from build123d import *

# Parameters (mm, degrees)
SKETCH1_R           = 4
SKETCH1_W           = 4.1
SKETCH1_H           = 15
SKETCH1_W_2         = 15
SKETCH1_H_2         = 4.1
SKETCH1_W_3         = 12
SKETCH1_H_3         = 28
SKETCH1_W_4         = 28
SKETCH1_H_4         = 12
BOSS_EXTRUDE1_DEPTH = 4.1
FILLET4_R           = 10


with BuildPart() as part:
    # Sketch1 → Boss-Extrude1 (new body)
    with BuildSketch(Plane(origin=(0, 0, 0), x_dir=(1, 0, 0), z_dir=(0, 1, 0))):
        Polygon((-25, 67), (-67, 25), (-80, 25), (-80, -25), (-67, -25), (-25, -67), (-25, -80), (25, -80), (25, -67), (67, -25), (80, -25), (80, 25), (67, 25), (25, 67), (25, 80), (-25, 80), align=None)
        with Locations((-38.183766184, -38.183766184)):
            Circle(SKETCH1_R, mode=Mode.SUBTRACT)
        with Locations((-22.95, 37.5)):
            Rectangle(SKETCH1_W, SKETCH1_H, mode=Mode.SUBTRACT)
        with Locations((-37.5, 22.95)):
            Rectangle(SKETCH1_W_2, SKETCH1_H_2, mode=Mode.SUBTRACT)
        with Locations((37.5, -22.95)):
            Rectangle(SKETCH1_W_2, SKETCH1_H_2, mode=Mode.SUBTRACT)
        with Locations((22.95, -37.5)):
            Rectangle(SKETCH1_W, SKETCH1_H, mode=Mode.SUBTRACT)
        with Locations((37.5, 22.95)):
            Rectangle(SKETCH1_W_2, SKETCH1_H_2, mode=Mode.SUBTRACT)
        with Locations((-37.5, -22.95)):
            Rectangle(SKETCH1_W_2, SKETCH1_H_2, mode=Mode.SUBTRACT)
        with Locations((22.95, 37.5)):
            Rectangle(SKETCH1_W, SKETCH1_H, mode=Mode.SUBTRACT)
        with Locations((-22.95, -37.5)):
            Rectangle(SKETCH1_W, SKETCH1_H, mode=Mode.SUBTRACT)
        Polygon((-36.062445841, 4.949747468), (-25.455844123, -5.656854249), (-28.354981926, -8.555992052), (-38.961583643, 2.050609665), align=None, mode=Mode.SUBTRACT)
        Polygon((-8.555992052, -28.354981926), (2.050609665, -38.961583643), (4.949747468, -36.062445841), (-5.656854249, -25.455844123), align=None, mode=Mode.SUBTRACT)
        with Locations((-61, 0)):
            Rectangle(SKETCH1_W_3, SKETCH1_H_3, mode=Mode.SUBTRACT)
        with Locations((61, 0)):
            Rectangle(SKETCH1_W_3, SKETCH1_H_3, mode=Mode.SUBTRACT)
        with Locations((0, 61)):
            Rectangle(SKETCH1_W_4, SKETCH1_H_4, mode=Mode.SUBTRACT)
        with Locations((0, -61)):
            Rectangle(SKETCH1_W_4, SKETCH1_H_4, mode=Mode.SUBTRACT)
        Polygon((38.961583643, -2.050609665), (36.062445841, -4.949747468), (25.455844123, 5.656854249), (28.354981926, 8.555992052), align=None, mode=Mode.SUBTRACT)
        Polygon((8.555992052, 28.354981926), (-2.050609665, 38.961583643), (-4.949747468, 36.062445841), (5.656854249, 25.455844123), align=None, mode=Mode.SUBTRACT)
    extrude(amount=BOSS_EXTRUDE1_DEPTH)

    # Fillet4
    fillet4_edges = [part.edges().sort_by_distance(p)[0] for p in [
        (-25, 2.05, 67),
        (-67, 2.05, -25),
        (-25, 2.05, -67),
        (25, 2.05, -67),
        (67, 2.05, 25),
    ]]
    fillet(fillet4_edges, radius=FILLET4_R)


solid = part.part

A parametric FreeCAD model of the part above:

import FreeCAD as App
import Part
import Sketcher
Q = App.Units.Quantity


def edges_at(feature, points):
    """Names of the edges that pass closest to the given points."""
    edges = feature.Shape.Edges
    near = lambda p: min(range(len(edges)), key=lambda i: edges[i].distToShape(Part.Vertex(*p))[0])
    return sorted({f"Edge{near(p) + 1}" for p in points})

doc = App.newDocument("Part")
body = doc.addObject("PartDesign::Body", "Body")

sketch1 = body.newObject("Sketcher::SketchObject", "Sketch")
sketch1.AttachmentSupport = (doc.getObject("XZ_Plane"), [""])
sketch1.MapMode = "FlatFace"
sketch1.addGeometry([
    Part.LineSegment(App.Vector(-25, -67, 0), App.Vector(-67, -25, 0)),
    Part.LineSegment(App.Vector(-67, -25, 0), App.Vector(-80, -25, 0)),
    Part.LineSegment(App.Vector(-80, -25, 0), App.Vector(-80, 25, 0)),
    Part.LineSegment(App.Vector(-80, 25, 0), App.Vector(-67, 25, 0)),
    Part.LineSegment(App.Vector(-67, 25, 0), App.Vector(-25, 67, 0)),
    Part.LineSegment(App.Vector(-25, 67, 0), App.Vector(-25, 80, 0)),
    Part.LineSegment(App.Vector(-25, 80, 0), App.Vector(25, 80, 0)),
    Part.LineSegment(App.Vector(25, 80, 0), App.Vector(25, 67, 0)),
    Part.LineSegment(App.Vector(25, 67, 0), App.Vector(67, 25, 0)),
    Part.LineSegment(App.Vector(67, 25, 0), App.Vector(80, 25, 0)),
    Part.LineSegment(App.Vector(80, 25, 0), App.Vector(80, -25, 0)),
    Part.LineSegment(App.Vector(80, -25, 0), App.Vector(67, -25, 0)),
    Part.LineSegment(App.Vector(67, -25, 0), App.Vector(25, -67, 0)),
    Part.LineSegment(App.Vector(25, -67, 0), App.Vector(25, -80, 0)),
    Part.LineSegment(App.Vector(25, -80, 0), App.Vector(-25, -80, 0)),
    Part.LineSegment(App.Vector(-25, -80, 0), App.Vector(-25, -67, 0)),
    Part.Circle(App.Vector(-38.183766, 38.183766, 0), App.Vector(0, 0, 1), 4),
    Part.LineSegment(App.Vector(-20.9, 45, 0), App.Vector(-25, 45, 0)),
    Part.LineSegment(App.Vector(-25, 45, 0), App.Vector(-25, 30, 0)),
    Part.LineSegment(App.Vector(-25, 30, 0), App.Vector(-20.9, 30, 0)),
    Part.LineSegment(App.Vector(-20.9, 30, 0), App.Vector(-20.9, 45, 0)),
    Part.LineSegment(App.Vector(-30, 25, 0), App.Vector(-45, 25, 0)),
    Part.LineSegment(App.Vector(-45, 25, 0), App.Vector(-45, 20.9, 0)),
    Part.LineSegment(App.Vector(-45, 20.9, 0), App.Vector(-30, 20.9, 0)),
    Part.LineSegment(App.Vector(-30, 20.9, 0), App.Vector(-30, 25, 0)),
    Part.LineSegment(App.Vector(2.05061, 38.961584, 0), App.Vector(-8.555992, 28.354982, 0)),
    Part.LineSegment(App.Vector(-8.555992, 28.354982, 0), App.Vector(-5.656854, 25.455844, 0)),
    Part.LineSegment(App.Vector(-5.656854, 25.455844, 0), App.Vector(4.949747, 36.062446, 0)),
    Part.LineSegment(App.Vector(4.949747, 36.062446, 0), App.Vector(2.05061, 38.961584, 0)),
    Part.LineSegment(App.Vector(-38.961584, -2.05061, 0), App.Vector(-36.062446, -4.949747, 0)),
    Part.LineSegment(App.Vector(-36.062446, -4.949747, 0), App.Vector(-25.455844, 5.656854, 0)),
    Part.LineSegment(App.Vector(-25.455844, 5.656854, 0), App.Vector(-28.354982, 8.555992, 0)),
    Part.LineSegment(App.Vector(-28.354982, 8.555992, 0), App.Vector(-38.961584, -2.05061, 0)),
    Part.LineSegment(App.Vector(14, 67, 0), App.Vector(-14, 67, 0)),
    Part.LineSegment(App.Vector(-14, 67, 0), App.Vector(-14, 55, 0)),
    Part.LineSegment(App.Vector(-14, 55, 0), App.Vector(14, 55, 0)),
    Part.LineSegment(App.Vector(14, 55, 0), App.Vector(14, 67, 0)),
    Part.LineSegment(App.Vector(25, 45, 0), App.Vector(20.9, 45, 0)),
    Part.LineSegment(App.Vector(20.9, 45, 0), App.Vector(20.9, 30, 0)),
    Part.LineSegment(App.Vector(20.9, 30, 0), App.Vector(25, 30, 0)),
    Part.LineSegment(App.Vector(25, 30, 0), App.Vector(25, 45, 0)),
    Part.LineSegment(App.Vector(45, 25, 0), App.Vector(30, 25, 0)),
    Part.LineSegment(App.Vector(30, 25, 0), App.Vector(30, 20.9, 0)),
    Part.LineSegment(App.Vector(30, 20.9, 0), App.Vector(45, 20.9, 0)),
    Part.LineSegment(App.Vector(45, 20.9, 0), App.Vector(45, 25, 0)),
    Part.LineSegment(App.Vector(-55, 14, 0), App.Vector(-67, 14, 0)),
    Part.LineSegment(App.Vector(-67, 14, 0), App.Vector(-67, -14, 0)),
    Part.LineSegment(App.Vector(-67, -14, 0), App.Vector(-55, -14, 0)),
    Part.LineSegment(App.Vector(-55, -14, 0), App.Vector(-55, 14, 0)),
    Part.LineSegment(App.Vector(-30, -20.9, 0), App.Vector(-45, -20.9, 0)),
    Part.LineSegment(App.Vector(-45, -20.9, 0), App.Vector(-45, -25, 0)),
    Part.LineSegment(App.Vector(-45, -25, 0), App.Vector(-30, -25, 0)),
    Part.LineSegment(App.Vector(-30, -25, 0), App.Vector(-30, -20.9, 0)),
    Part.LineSegment(App.Vector(-20.9, -30, 0), App.Vector(-25, -30, 0)),
    Part.LineSegment(App.Vector(-25, -30, 0), App.Vector(-25, -45, 0)),
    Part.LineSegment(App.Vector(-25, -45, 0), App.Vector(-20.9, -45, 0)),
    Part.LineSegment(App.Vector(-20.9, -45, 0), App.Vector(-20.9, -30, 0)),
    Part.LineSegment(App.Vector(28.354982, -8.555992, 0), App.Vector(38.961584, 2.05061, 0)),
    Part.LineSegment(App.Vector(38.961584, 2.05061, 0), App.Vector(36.062446, 4.949747, 0)),
    Part.LineSegment(App.Vector(36.062446, 4.949747, 0), App.Vector(25.455844, -5.656854, 0)),
    Part.LineSegment(App.Vector(25.455844, -5.656854, 0), App.Vector(28.354982, -8.555992, 0)),
    Part.LineSegment(App.Vector(-2.05061, -38.961584, 0), App.Vector(8.555992, -28.354982, 0)),
    Part.LineSegment(App.Vector(8.555992, -28.354982, 0), App.Vector(5.656854, -25.455844, 0)),
    Part.LineSegment(App.Vector(5.656854, -25.455844, 0), App.Vector(-4.949747, -36.062446, 0)),
    Part.LineSegment(App.Vector(-4.949747, -36.062446, 0), App.Vector(-2.05061, -38.961584, 0)),
    Part.LineSegment(App.Vector(67, 14, 0), App.Vector(55, 14, 0)),
    Part.LineSegment(App.Vector(55, 14, 0), App.Vector(55, -14, 0)),
    Part.LineSegment(App.Vector(55, -14, 0), App.Vector(67, -14, 0)),
    Part.LineSegment(App.Vector(67, -14, 0), App.Vector(67, 14, 0)),
    Part.LineSegment(App.Vector(45, -20.9, 0), App.Vector(30, -20.9, 0)),
    Part.LineSegment(App.Vector(30, -20.9, 0), App.Vector(30, -25, 0)),
    Part.LineSegment(App.Vector(30, -25, 0), App.Vector(45, -25, 0)),
    Part.LineSegment(App.Vector(45, -25, 0), App.Vector(45, -20.9, 0)),
    Part.LineSegment(App.Vector(25, -30, 0), App.Vector(20.9, -30, 0)),
    Part.LineSegment(App.Vector(20.9, -30, 0), App.Vector(20.9, -45, 0)),
    Part.LineSegment(App.Vector(20.9, -45, 0), App.Vector(25, -45, 0)),
    Part.LineSegment(App.Vector(25, -45, 0), App.Vector(25, -30, 0)),
    Part.LineSegment(App.Vector(14, -55, 0), App.Vector(-14, -55, 0)),
    Part.LineSegment(App.Vector(-14, -55, 0), App.Vector(-14, -67, 0)),
    Part.LineSegment(App.Vector(-14, -67, 0), App.Vector(14, -67, 0)),
    Part.LineSegment(App.Vector(14, -67, 0), App.Vector(14, -55, 0)),
], False)
sketch1.addConstraint([
    Sketcher.Constraint("Coincident", 0, 2, 1, 1),
    Sketcher.Constraint("Coincident", 1, 2, 2, 1),
    Sketcher.Constraint("Coincident", 2, 2, 3, 1),
    Sketcher.Constraint("Coincident", 3, 2, 4, 1),
    Sketcher.Constraint("Coincident", 4, 2, 5, 1),
    Sketcher.Constraint("Coincident", 5, 2, 6, 1),
    Sketcher.Constraint("Coincident", 6, 2, 7, 1),
    Sketcher.Constraint("Coincident", 7, 2, 8, 1),
    Sketcher.Constraint("Coincident", 8, 2, 9, 1),
    Sketcher.Constraint("Coincident", 9, 2, 10, 1),
    Sketcher.Constraint("Coincident", 10, 2, 11, 1),
    Sketcher.Constraint("Coincident", 11, 2, 12, 1),
    Sketcher.Constraint("Coincident", 12, 2, 13, 1),
    Sketcher.Constraint("Coincident", 13, 2, 14, 1),
    Sketcher.Constraint("Coincident", 14, 2, 15, 1),
    Sketcher.Constraint("Coincident", 15, 2, 0, 1),
    Sketcher.Constraint("Coincident", 17, 2, 18, 1),
    Sketcher.Constraint("Coincident", 18, 2, 19, 1),
    Sketcher.Constraint("Coincident", 19, 2, 20, 1),
    Sketcher.Constraint("Coincident", 20, 2, 17, 1),
    Sketcher.Constraint("Coincident", 21, 2, 22, 1),
    Sketcher.Constraint("Coincident", 22, 2, 23, 1),
    Sketcher.Constraint("Coincident", 23, 2, 24, 1),
    Sketcher.Constraint("Coincident", 24, 2, 21, 1),
    Sketcher.Constraint("Coincident", 25, 2, 26, 1),
    Sketcher.Constraint("Coincident", 26, 2, 27, 1),
    Sketcher.Constraint("Coincident", 27, 2, 28, 1),
    Sketcher.Constraint("Coincident", 28, 2, 25, 1),
    Sketcher.Constraint("Coincident", 29, 2, 30, 1),
    Sketcher.Constraint("Coincident", 30, 2, 31, 1),
    Sketcher.Constraint("Coincident", 31, 2, 32, 1),
    Sketcher.Constraint("Coincident", 32, 2, 29, 1),
    Sketcher.Constraint("Coincident", 33, 2, 34, 1),
    Sketcher.Constraint("Coincident", 34, 2, 35, 1),
    Sketcher.Constraint("Coincident", 35, 2, 36, 1),
    Sketcher.Constraint("Coincident", 36, 2, 33, 1),
    Sketcher.Constraint("Coincident", 37, 2, 38, 1),
    Sketcher.Constraint("Coincident", 38, 2, 39, 1),
    Sketcher.Constraint("Coincident", 39, 2, 40, 1),
    Sketcher.Constraint("Coincident", 40, 2, 37, 1),
    Sketcher.Constraint("Coincident", 41, 2, 42, 1),
    Sketcher.Constraint("Coincident", 42, 2, 43, 1),
    Sketcher.Constraint("Coincident", 43, 2, 44, 1),
    Sketcher.Constraint("Coincident", 44, 2, 41, 1),
    Sketcher.Constraint("Coincident", 45, 2, 46, 1),
    Sketcher.Constraint("Coincident", 46, 2, 47, 1),
    Sketcher.Constraint("Coincident", 47, 2, 48, 1),
    Sketcher.Constraint("Coincident", 48, 2, 45, 1),
    Sketcher.Constraint("Coincident", 49, 2, 50, 1),
    Sketcher.Constraint("Coincident", 50, 2, 51, 1),
    Sketcher.Constraint("Coincident", 51, 2, 52, 1),
    Sketcher.Constraint("Coincident", 52, 2, 49, 1),
    Sketcher.Constraint("Coincident", 53, 2, 54, 1),
    Sketcher.Constraint("Coincident", 54, 2, 55, 1),
    Sketcher.Constraint("Coincident", 55, 2, 56, 1),
    Sketcher.Constraint("Coincident", 56, 2, 53, 1),
    Sketcher.Constraint("Coincident", 57, 2, 58, 1),
    Sketcher.Constraint("Coincident", 58, 2, 59, 1),
    Sketcher.Constraint("Coincident", 59, 2, 60, 1),
    Sketcher.Constraint("Coincident", 60, 2, 57, 1),
    Sketcher.Constraint("Coincident", 61, 2, 62, 1),
    Sketcher.Constraint("Coincident", 62, 2, 63, 1),
    Sketcher.Constraint("Coincident", 63, 2, 64, 1),
    Sketcher.Constraint("Coincident", 64, 2, 61, 1),
    Sketcher.Constraint("Coincident", 65, 2, 66, 1),
    Sketcher.Constraint("Coincident", 66, 2, 67, 1),
    Sketcher.Constraint("Coincident", 67, 2, 68, 1),
    Sketcher.Constraint("Coincident", 68, 2, 65, 1),
    Sketcher.Constraint("Coincident", 69, 2, 70, 1),
    Sketcher.Constraint("Coincident", 70, 2, 71, 1),
    Sketcher.Constraint("Coincident", 71, 2, 72, 1),
    Sketcher.Constraint("Coincident", 72, 2, 69, 1),
    Sketcher.Constraint("Coincident", 73, 2, 74, 1),
    Sketcher.Constraint("Coincident", 74, 2, 75, 1),
    Sketcher.Constraint("Coincident", 75, 2, 76, 1),
    Sketcher.Constraint("Coincident", 76, 2, 73, 1),
    Sketcher.Constraint("Coincident", 77, 2, 78, 1),
    Sketcher.Constraint("Coincident", 78, 2, 79, 1),
    Sketcher.Constraint("Coincident", 79, 2, 80, 1),
    Sketcher.Constraint("Coincident", 80, 2, 77, 1),
    Sketcher.Constraint("Horizontal", 1),
    Sketcher.Constraint("Vertical", 2),
    Sketcher.Constraint("Horizontal", 3),
    Sketcher.Constraint("Vertical", 5),
    Sketcher.Constraint("Horizontal", 6),
    Sketcher.Constraint("Vertical", 7),
    Sketcher.Constraint("Horizontal", 9),
    Sketcher.Constraint("Vertical", 10),
    Sketcher.Constraint("Horizontal", 11),
    Sketcher.Constraint("Vertical", 13),
    Sketcher.Constraint("Horizontal", 14),
    Sketcher.Constraint("Vertical", 15),
    Sketcher.Constraint("Horizontal", 17),
    Sketcher.Constraint("Vertical", 18),
    Sketcher.Constraint("Horizontal", 19),
    Sketcher.Constraint("Vertical", 20),
    Sketcher.Constraint("Horizontal", 21),
    Sketcher.Constraint("Vertical", 22),
    Sketcher.Constraint("Horizontal", 23),
    Sketcher.Constraint("Vertical", 24),
    Sketcher.Constraint("Horizontal", 33),
    Sketcher.Constraint("Vertical", 34),
    Sketcher.Constraint("Horizontal", 35),
    Sketcher.Constraint("Vertical", 36),
    Sketcher.Constraint("Horizontal", 37),
    Sketcher.Constraint("Vertical", 38),
    Sketcher.Constraint("Horizontal", 39),
    Sketcher.Constraint("Vertical", 40),
    Sketcher.Constraint("Horizontal", 41),
    Sketcher.Constraint("Vertical", 42),
    Sketcher.Constraint("Horizontal", 43),
    Sketcher.Constraint("Vertical", 44),
    Sketcher.Constraint("Horizontal", 45),
    Sketcher.Constraint("Vertical", 46),
    Sketcher.Constraint("Horizontal", 47),
    Sketcher.Constraint("Vertical", 48),
    Sketcher.Constraint("Horizontal", 49),
    Sketcher.Constraint("Vertical", 50),
    Sketcher.Constraint("Horizontal", 51),
    Sketcher.Constraint("Vertical", 52),
    Sketcher.Constraint("Horizontal", 53),
    Sketcher.Constraint("Vertical", 54),
    Sketcher.Constraint("Horizontal", 55),
    Sketcher.Constraint("Vertical", 56),
    Sketcher.Constraint("Horizontal", 65),
    Sketcher.Constraint("Vertical", 66),
    Sketcher.Constraint("Horizontal", 67),
    Sketcher.Constraint("Vertical", 68),
    Sketcher.Constraint("Horizontal", 69),
    Sketcher.Constraint("Vertical", 70),
    Sketcher.Constraint("Horizontal", 71),
    Sketcher.Constraint("Vertical", 72),
    Sketcher.Constraint("Horizontal", 73),
    Sketcher.Constraint("Vertical", 74),
    Sketcher.Constraint("Horizontal", 75),
    Sketcher.Constraint("Vertical", 76),
    Sketcher.Constraint("Horizontal", 77),
    Sketcher.Constraint("Vertical", 78),
    Sketcher.Constraint("Horizontal", 79),
    Sketcher.Constraint("Vertical", 80),
    Sketcher.Constraint("Symmetric", 0, 2, 8, 2, -1, 1),
    Sketcher.Constraint("Symmetric", 2, 2, 10, 2, -1, 1),
    Sketcher.Constraint("Symmetric", 4, 2, 12, 2, -1, 1),
    Sketcher.Constraint("Symmetric", 6, 2, 14, 2, -1, 1),
    Sketcher.Constraint("Symmetric", 43, 2, 49, 2, -1, 1),
    Sketcher.Constraint("Symmetric", 41, 2, 51, 2, -1, 1),
    Sketcher.Constraint("Symmetric", 39, 2, 53, 2, -1, 1),
    Sketcher.Constraint("Symmetric", 37, 2, 55, 2, -1, 1),
    Sketcher.Constraint("Symmetric", 32, 2, 57, 2, -1, 1),
    Sketcher.Constraint("Symmetric", 29, 2, 58, 2, -1, 1),
    Sketcher.Constraint("Symmetric", 30, 2, 59, 2, -1, 1),
    Sketcher.Constraint("Symmetric", 31, 2, 60, 2, -1, 1),
    Sketcher.Constraint("Symmetric", 25, 2, 61, 2, -1, 1),
    Sketcher.Constraint("Symmetric", 26, 2, 62, 2, -1, 1),
    Sketcher.Constraint("Symmetric", 27, 2, 63, 2, -1, 1),
    Sketcher.Constraint("Symmetric", 28, 2, 64, 2, -1, 1),
    Sketcher.Constraint("Symmetric", 47, 2, 65, 2, -1, 1),
    Sketcher.Constraint("Symmetric", 45, 2, 67, 2, -1, 1),
    Sketcher.Constraint("Symmetric", 23, 2, 69, 2, -1, 1),
    Sketcher.Constraint("Symmetric", 21, 2, 71, 2, -1, 1),
    Sketcher.Constraint("Symmetric", 19, 2, 73, 2, -1, 1),
    Sketcher.Constraint("Symmetric", 17, 2, 75, 2, -1, 1),
    Sketcher.Constraint("Symmetric", 35, 2, 77, 2, -1, 1),
    Sketcher.Constraint("Symmetric", 33, 2, 79, 2, -1, 1),
    Sketcher.Constraint("Symmetric", 4, 2, 7, 2, -2),
    Sketcher.Constraint("Symmetric", 3, 2, 8, 2, -2),
    Sketcher.Constraint("Symmetric", 20, 2, 37, 2, -2),
    Sketcher.Constraint("Symmetric", 18, 2, 39, 2, -2),
    Sketcher.Constraint("Symmetric", 24, 2, 41, 2, -2),
    Sketcher.Constraint("Symmetric", 22, 2, 43, 2, -2),
    Sketcher.Constraint("Perpendicular", 0, 4),
    Sketcher.Constraint("Perpendicular", 4, 8),
    Sketcher.Constraint("Perpendicular", 8, 12),
    Sketcher.Constraint("Parallel", 12, 25),
    Sketcher.Constraint("Perpendicular", 25, 26),
    Sketcher.Constraint("Perpendicular", 26, 27),
    Sketcher.Constraint("Perpendicular", 27, 28),
    Sketcher.Constraint("Parallel", 28, 29),
    Sketcher.Constraint("Perpendicular", 29, 30),
    Sketcher.Constraint("Perpendicular", 30, 31),
    Sketcher.Constraint("Perpendicular", 31, 32),
    Sketcher.Constraint("Horizontal", 9, 2, 21, 2),
    Sketcher.Constraint("Horizontal", 7, 2, 33, 2),
    Sketcher.Constraint("Horizontal", 48, 2, 65, 2),
    Sketcher.Constraint("Vertical", 15, 2, 17, 2),
    Sketcher.Constraint("Vertical", 3, 2, 45, 2),
    Sketcher.Constraint("Vertical", 34, 2, 77, 2),
    Sketcher.Constraint("Equal", 14, 2),
    Sketcher.Constraint("Equal", 11, 5),
    Sketcher.Constraint("Equal", 71, 18),
    Sketcher.Constraint("Equal", 75, 22),
    Sketcher.Constraint("Equal", 67, 34),
    Sketcher.Constraint("Equal", 79, 46),
    Sketcher.Constraint("Equal", 28, 29),
    Sketcher.Constraint("Equal", 27, 30),
    Sketcher.Constraint("Diameter", 16, Q("8 mm")),
    Sketcher.Constraint("DistanceX", 1, 2, 1, 1, Q("13 mm")),
    Sketcher.Constraint("DistanceX", 6, 1, 6, 2, Q("50 mm")),
    Sketcher.Constraint("DistanceX", 21, 2, 21, 1, Q("15 mm")),
    Sketcher.Constraint("DistanceX", 33, 2, 33, 1, Q("28 mm")),
    Sketcher.Constraint("DistanceX", 45, 2, 45, 1, Q("12 mm")),
    Sketcher.Constraint("Distance", 25, Q("15 mm")),
    Sketcher.Constraint("DistanceX", 17, 2, 17, 1, Q("4.1 mm")),
    Sketcher.Constraint("DistanceX", 0, 2, -1, 1, Q("67 mm")),
    Sketcher.Constraint("DistanceY", -1, 1, 17, 2, Q("45 mm")),
    Sketcher.Constraint("DistanceX", 21, 2, -1, 1, Q("45 mm")),
    Sketcher.Constraint("Distance", 26, Q("4.1 mm")),
    Sketcher.Constraint("DistanceY", -1, 1, 25, 2, Q("28.354982 mm")),
    Sketcher.Constraint("DistanceX", -1, 1, 28, 2, Q("2.05061 mm")),
    Sketcher.Constraint("DistanceX", 31, 2, -1, 1, Q("28.354982 mm")),
    Sketcher.Constraint("DistanceY", 32, 2, -1, 1, Q("2.05061 mm")),
    Sketcher.Constraint("DistanceX", 16, 3, -1, 1, Q("38.183766 mm")),
    Sketcher.Constraint("DistanceY", -1, 1, 16, 3, Q("38.183766 mm")),
])
pad1 = body.newObject("PartDesign::Pad", "Pad")
pad1.Profile = sketch1
pad1.Length = 4.1
pad1.Reversed = True
doc.recompute()

fillet = body.newObject("PartDesign::Fillet", "Fillet")
fillet.Base = (pad1, edges_at(pad1, [
    (-25, 2.05, 67),
    (-67, 2.05, -25),
    (-25, 2.05, -67),
    (25, 2.05, -67),
    (67, 2.05, 25),
]))
fillet.Radius = 10

doc.recompute()
